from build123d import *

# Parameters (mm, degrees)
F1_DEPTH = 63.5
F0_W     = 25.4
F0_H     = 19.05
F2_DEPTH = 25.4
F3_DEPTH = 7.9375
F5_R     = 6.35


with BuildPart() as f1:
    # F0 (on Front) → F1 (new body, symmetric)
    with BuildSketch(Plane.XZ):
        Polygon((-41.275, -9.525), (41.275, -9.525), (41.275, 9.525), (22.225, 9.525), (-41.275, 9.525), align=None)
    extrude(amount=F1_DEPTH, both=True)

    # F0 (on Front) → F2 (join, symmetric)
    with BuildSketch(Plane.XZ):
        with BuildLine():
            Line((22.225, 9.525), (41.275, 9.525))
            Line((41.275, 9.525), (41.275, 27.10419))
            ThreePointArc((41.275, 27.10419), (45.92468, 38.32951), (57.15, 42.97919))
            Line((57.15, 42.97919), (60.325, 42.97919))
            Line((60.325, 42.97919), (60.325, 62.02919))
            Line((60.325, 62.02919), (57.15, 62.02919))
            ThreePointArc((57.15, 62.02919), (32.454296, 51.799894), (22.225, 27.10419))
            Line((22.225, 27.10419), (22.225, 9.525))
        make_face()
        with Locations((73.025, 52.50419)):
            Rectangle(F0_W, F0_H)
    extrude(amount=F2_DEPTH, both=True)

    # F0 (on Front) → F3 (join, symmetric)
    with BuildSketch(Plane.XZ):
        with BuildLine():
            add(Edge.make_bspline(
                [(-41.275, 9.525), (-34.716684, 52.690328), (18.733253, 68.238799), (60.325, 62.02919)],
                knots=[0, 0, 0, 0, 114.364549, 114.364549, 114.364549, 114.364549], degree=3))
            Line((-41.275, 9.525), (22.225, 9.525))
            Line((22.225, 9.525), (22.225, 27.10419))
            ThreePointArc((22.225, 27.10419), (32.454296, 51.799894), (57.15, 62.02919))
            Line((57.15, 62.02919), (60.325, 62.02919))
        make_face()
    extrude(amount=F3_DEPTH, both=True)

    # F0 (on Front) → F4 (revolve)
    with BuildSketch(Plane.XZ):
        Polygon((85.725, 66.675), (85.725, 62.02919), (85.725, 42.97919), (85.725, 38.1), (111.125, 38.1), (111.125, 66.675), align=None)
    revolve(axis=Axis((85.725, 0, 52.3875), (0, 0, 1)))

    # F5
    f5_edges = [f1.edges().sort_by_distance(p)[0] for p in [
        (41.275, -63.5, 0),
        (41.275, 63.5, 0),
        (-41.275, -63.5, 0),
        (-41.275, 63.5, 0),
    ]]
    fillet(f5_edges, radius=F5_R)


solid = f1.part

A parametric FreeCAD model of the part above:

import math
import FreeCAD as App
import Part
import Sketcher
from FreeCAD import Vector
Q = App.Units.Quantity


def edges_at(feature, points):
    """Names of the edges that pass closest to the given points."""
    edges = feature.Shape.Edges
    near = lambda p: min(range(len(edges)), key=lambda i: edges[i].distToShape(Part.Vertex(*p))[0])
    return sorted({f"Edge{near(p) + 1}" for p in points})

doc = App.newDocument("Part")
body = doc.addObject("PartDesign::Body", "Body")

sketch1 = body.newObject("Sketcher::SketchObject", "Sketch")
sketch1.AttachmentSupport = (doc.getObject("XZ_Plane"), [""])
sketch1.MapMode = "FlatFace"
sketch1.addGeometry([
    Part.LineSegment(Vector(-41, -10, 0), Vector(41, -10, 0)),
    Part.LineSegment(Vector(41, -10, 0), Vector(41, 10, 0)),
    Part.LineSegment(Vector(41, 10, 0), Vector(-41, 10, 0)),
    Part.LineSegment(Vector(-41, 10, 0), Vector(-41, -10, 0)),
], False)
sketch1.addConstraint([
    Sketcher.Constraint("Coincident", 0, 2, 1, 1),
    Sketcher.Constraint("Coincident", 1, 2, 2, 1),
    Sketcher.Constraint("Coincident", 2, 2, 3, 1),
    Sketcher.Constraint("Coincident", 3, 2, 0, 1),
    Sketcher.Constraint("Horizontal", 0),
    Sketcher.Constraint("Vertical", 1),
    Sketcher.Constraint("Horizontal", 2),
    Sketcher.Constraint("Vertical", 3),
    Sketcher.Constraint("Symmetric", 0, 2, 2, 2, -1, 1),
    Sketcher.Constraint("DistanceX", 0, 1, 0, 2, Q("3.25 in")),
    Sketcher.Constraint("DistanceY", 1, 1, 1, 2, Q("0.75 in")),
])
pad1 = body.newObject("PartDesign::Pad", "Pad")
pad1.Profile = sketch1
pad1.Length = Q("5 in")
pad1.Midplane = True

sketch2 = body.newObject("Sketcher::SketchObject", "Sketch001")
sketch2.AttachmentSupport = (doc.getObject("XZ_Plane"), [""])
sketch2.MapMode = "FlatFace"
sketch2.addGeometry([
    Part.LineSegment(Vector(22, 10, 0), Vector(41, 10, 0)),
    Part.LineSegment(Vector(41, 10, 0), Vector(41, 27, 0)),
    Part.ArcOfCircle(Part.Circle(Vector(57, 27, 0), Vector(0, 0, 1), 16), math.radians(90), math.radians(180)),
    Part.LineSegment(Vector(57, 43, 0), Vector(86, 43, 0)),
    Part.LineSegment(Vector(86, 43, 0), Vector(86, 62, 0)),
    Part.LineSegment(Vector(86, 62, 0), Vector(57, 62, 0)),
    Part.ArcOfCircle(Part.Circle(Vector(57, 27, 0), Vector(0, 0, 1), 35), math.radians(90), math.radians(180)),
    Part.LineSegment(Vector(22, 27, 0), Vector(22, 10, 0)),
], False)
sketch2.addConstraint([
    Sketcher.Constraint("Coincident", 0, 2, 1, 1),
    Sketcher.Constraint("Tangent", 1, 2, 2, 2),
    Sketcher.Constraint("Tangent", 2, 1, 3, 1),
    Sketcher.Constraint("Coincident", 3, 2, 4, 1),
    Sketcher.Constraint("Coincident", 4, 2, 5, 1),
    Sketcher.Constraint("Tangent", 5, 2, 6, 1),
    Sketcher.Constraint("Tangent", 6, 2, 7, 1),
    Sketcher.Constraint("Coincident", 7, 2, 0, 1),
    Sketcher.Constraint("Horizontal", 0),
    Sketcher.Constraint("Vertical", 1),
    Sketcher.Constraint("Horizontal", 3),
    Sketcher.Constraint("Vertical", 4),
    Sketcher.Constraint("Horizontal", 5),
    Sketcher.Constraint("Vertical", 7),
    Sketcher.Constraint("Coincident", 6, 3, 2, 3),
    Sketcher.Constraint("Radius", 2, Q("0.625 in")),
    Sketcher.Constraint("Radius", 6, Q("1.375 in")),
    Sketcher.Constraint("DistanceX", 3, 1, 3, 2, Q("1.125 in")),
    Sketcher.Constraint("DistanceX", -1, 1, 2, 3, Q("2.25 in")),
    Sketcher.Constraint("DistanceY", -1, 1, 0, 2, Q("0.375 in")),
    Sketcher.Constraint("DistanceY", 1, 1, 1, 2, 17.57919),
])
pad2 = body.newObject("PartDesign::Pad", "Pad001")
pad2.Profile = sketch2
pad2.Length = Q("2 in")
pad2.Midplane = True

sketch3 = body.newObject("Sketcher::SketchObject", "Sketch002")
sketch3.AttachmentSupport = (doc.getObject("XZ_Plane"), [""])
sketch3.MapMode = "FlatFace"
sketch3.addGeometry([
    Part.BSplineCurve([Vector(-41.275, 9.525, 0), Vector(-34.716684, 52.690328, 0), Vector(18.733253, 68.238799, 0), Vector(60.325, 62.02919, 0)], [4, 4], [0, 114.364549], False, 3, [1, 1, 1, 1], False),
    Part.LineSegment(Vector(-41.275, 9.525, 0), Vector(22.225, 9.525, 0)),
    Part.LineSegment(Vector(22.225, 9.525, 0), Vector(22.225, 27.10419, 0)),
    Part.ArcOfCircle(Part.Circle(Vector(57.150001, 27.104189, 0), Vector(0, 0, 1), 34.925001), math.radians(90.000002), math.radians(179.999998)),
    Part.LineSegment(Vector(57.15, 62.02919, 0), Vector(60.325, 62.02919, 0)),
], False)
sketch3.addConstraint([
    Sketcher.Constraint("Block", 0),
    Sketcher.Constraint("Coincident", 0, 1, 1, 1),
    Sketcher.Constraint("Coincident", 1, 2, 2, 1),
    Sketcher.Constraint("Tangent", 2, 2, 3, 2),
    Sketcher.Constraint("Tangent", 3, 1, 4, 1),
    Sketcher.Constraint("Coincident", 4, 2, 0, 2),
    Sketcher.Constraint("Horizontal", 1),
    Sketcher.Constraint("Vertical", 2),
    Sketcher.Constraint("Horizontal", 4),
    Sketcher.Constraint("DistanceX", 1, 1, 1, 2, Q("2.5 in")),
    Sketcher.Constraint("Radius", 3, Q("1.375 in")),
])
pad3 = body.newObject("PartDesign::Pad", "Pad002")
pad3.Profile = sketch3
pad3.Length = Q("0.625 in")
pad3.Midplane = True

sketch4 = body.newObject("Sketcher::SketchObject", "Sketch003")
sketch4.AttachmentSupport = (doc.getObject("XZ_Plane"), [""])
sketch4.MapMode = "FlatFace"
sketch4.addGeometry([
    Part.LineSegment(Vector(86, 67, 0), Vector(86, 38, 0)),
    Part.LineSegment(Vector(86, 38, 0), Vector(111, 38, 0)),
    Part.LineSegment(Vector(111, 38, 0), Vector(111, 67, 0)),
    Part.LineSegment(Vector(111, 67, 0), Vector(86, 67, 0)),
], False)
sketch4.addGeometry(Part.LineSegment(Vector(86, 38, 0), Vector(86, 67, 0)), True)
sketch4.addConstraint([
    Sketcher.Constraint("Coincident", 0, 2, 1, 1),
    Sketcher.Constraint("Coincident", 1, 2, 2, 1),
    Sketcher.Constraint("Coincident", 2, 2, 3, 1),
    Sketcher.Constraint("Coincident", 3, 2, 0, 1),
    Sketcher.Constraint("Vertical", 0),
    Sketcher.Constraint("Horizontal", 1),
    Sketcher.Constraint("Vertical", 2),
    Sketcher.Constraint("Horizontal", 3),
    Sketcher.Constraint("Vertical", 4),
    Sketcher.Constraint("Coincident", 4, 1, 0, 2),
    Sketcher.Constraint("Horizontal", 2, 2, 4, 2),
    Sketcher.Constraint("DistanceX", 1, 1, 1, 2, Q("1 in")),
    Sketcher.Constraint("DistanceY", -1, 1, 0, 2, Q("1.5 in")),
    Sketcher.Constraint("DistanceY", 0, 2, 0, 1, Q("1.125 in")),
    Sketcher.Constraint("DistanceX", -1, 1, 0, 2, Q("3.375 in")),
])
revolution = body.newObject("PartDesign::Revolution", "Revolution")
revolution.Profile = sketch4
revolution.ReferenceAxis = (sketch4, ["Axis0"])
revolution.Angle = 360
doc.recompute()

fillet = body.newObject("PartDesign::Fillet", "Fillet")
fillet.Base = (revolution, edges_at(revolution, [
    (41.275, -63.5, 0),
    (41.275, 63.5, 0),
    (-41.275, -63.5, 0),
    (-41.275, 63.5, 0),
]))
fillet.Radius = Q("0.25 in")

doc.recompute()
